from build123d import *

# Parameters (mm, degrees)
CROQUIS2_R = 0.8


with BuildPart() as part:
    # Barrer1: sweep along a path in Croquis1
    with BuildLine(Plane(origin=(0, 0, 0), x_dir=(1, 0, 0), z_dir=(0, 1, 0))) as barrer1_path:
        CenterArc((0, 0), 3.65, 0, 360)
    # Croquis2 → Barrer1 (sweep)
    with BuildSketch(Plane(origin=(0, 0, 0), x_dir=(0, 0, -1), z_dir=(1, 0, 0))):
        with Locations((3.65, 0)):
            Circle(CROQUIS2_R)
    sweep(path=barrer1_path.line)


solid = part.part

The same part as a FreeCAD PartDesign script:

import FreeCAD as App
import Part
import Sketcher
Q = App.Units.Quantity

doc = App.newDocument("Part")
params = doc.addObject("Spreadsheet::Sheet", "Params")
for row, (alias, value) in enumerate([
    ("sketch1_diameter", "1.6 mm"),
    ("sketch2_diameter", "7.3 mm"),
], start=1):
    params.set(f"A{row}", alias)
    params.set(f"B{row}", "=" + value)
    params.setAlias(f"B{row}", alias)

body = doc.addObject("PartDesign::Body", "Body")

sketch1 = body.newObject("Sketcher::SketchObject", "Sketch")
sketch1.AttachmentSupport = (doc.getObject("YZ_Plane"), [""])
sketch1.MapMode = "FlatFace"
sketch1.addGeometry(Part.Circle(App.Vector(0, -3.65, 0), App.Vector(0, 0, 1), 0.8), False)
sketch1.addConstraint(Sketcher.Constraint("PointOnObject", 0, 3, -2))
sketch1.addConstraint(Sketcher.Constraint("Diameter", 0, Q("1.6 mm")))
sketch1.addConstraint(Sketcher.Constraint("DistanceY", 0, 3, -1, 1, Q("3.65 mm")))
sketch1.setExpression("Constraints[1]", "Params.sketch1_diameter")

sketch2 = body.newObject("Sketcher::SketchObject", "Sketch001")
sketch2.AttachmentSupport = (doc.getObject("XZ_Plane"), [""])
sketch2.MapMode = "FlatFace"
sketch2.addGeometry(Part.Circle(App.Vector(0, 0, 0), App.Vector(0, 0, 1), 3.65), False)
sketch2.addConstraint(Sketcher.Constraint("Coincident", 0, 3, -1, 1))
sketch2.addConstraint(Sketcher.Constraint("Diameter", 0, Q("7.3 mm")))
sketch2.setExpression("Constraints[1]", "Params.sketch2_diameter")
doc.recompute()

additivepipe = body.newObject("PartDesign::AdditivePipe", "AdditivePipe")
additivepipe.Profile = sketch1
additivepipe.Spine = (sketch2, ["Edge1"])

doc.recompute()
